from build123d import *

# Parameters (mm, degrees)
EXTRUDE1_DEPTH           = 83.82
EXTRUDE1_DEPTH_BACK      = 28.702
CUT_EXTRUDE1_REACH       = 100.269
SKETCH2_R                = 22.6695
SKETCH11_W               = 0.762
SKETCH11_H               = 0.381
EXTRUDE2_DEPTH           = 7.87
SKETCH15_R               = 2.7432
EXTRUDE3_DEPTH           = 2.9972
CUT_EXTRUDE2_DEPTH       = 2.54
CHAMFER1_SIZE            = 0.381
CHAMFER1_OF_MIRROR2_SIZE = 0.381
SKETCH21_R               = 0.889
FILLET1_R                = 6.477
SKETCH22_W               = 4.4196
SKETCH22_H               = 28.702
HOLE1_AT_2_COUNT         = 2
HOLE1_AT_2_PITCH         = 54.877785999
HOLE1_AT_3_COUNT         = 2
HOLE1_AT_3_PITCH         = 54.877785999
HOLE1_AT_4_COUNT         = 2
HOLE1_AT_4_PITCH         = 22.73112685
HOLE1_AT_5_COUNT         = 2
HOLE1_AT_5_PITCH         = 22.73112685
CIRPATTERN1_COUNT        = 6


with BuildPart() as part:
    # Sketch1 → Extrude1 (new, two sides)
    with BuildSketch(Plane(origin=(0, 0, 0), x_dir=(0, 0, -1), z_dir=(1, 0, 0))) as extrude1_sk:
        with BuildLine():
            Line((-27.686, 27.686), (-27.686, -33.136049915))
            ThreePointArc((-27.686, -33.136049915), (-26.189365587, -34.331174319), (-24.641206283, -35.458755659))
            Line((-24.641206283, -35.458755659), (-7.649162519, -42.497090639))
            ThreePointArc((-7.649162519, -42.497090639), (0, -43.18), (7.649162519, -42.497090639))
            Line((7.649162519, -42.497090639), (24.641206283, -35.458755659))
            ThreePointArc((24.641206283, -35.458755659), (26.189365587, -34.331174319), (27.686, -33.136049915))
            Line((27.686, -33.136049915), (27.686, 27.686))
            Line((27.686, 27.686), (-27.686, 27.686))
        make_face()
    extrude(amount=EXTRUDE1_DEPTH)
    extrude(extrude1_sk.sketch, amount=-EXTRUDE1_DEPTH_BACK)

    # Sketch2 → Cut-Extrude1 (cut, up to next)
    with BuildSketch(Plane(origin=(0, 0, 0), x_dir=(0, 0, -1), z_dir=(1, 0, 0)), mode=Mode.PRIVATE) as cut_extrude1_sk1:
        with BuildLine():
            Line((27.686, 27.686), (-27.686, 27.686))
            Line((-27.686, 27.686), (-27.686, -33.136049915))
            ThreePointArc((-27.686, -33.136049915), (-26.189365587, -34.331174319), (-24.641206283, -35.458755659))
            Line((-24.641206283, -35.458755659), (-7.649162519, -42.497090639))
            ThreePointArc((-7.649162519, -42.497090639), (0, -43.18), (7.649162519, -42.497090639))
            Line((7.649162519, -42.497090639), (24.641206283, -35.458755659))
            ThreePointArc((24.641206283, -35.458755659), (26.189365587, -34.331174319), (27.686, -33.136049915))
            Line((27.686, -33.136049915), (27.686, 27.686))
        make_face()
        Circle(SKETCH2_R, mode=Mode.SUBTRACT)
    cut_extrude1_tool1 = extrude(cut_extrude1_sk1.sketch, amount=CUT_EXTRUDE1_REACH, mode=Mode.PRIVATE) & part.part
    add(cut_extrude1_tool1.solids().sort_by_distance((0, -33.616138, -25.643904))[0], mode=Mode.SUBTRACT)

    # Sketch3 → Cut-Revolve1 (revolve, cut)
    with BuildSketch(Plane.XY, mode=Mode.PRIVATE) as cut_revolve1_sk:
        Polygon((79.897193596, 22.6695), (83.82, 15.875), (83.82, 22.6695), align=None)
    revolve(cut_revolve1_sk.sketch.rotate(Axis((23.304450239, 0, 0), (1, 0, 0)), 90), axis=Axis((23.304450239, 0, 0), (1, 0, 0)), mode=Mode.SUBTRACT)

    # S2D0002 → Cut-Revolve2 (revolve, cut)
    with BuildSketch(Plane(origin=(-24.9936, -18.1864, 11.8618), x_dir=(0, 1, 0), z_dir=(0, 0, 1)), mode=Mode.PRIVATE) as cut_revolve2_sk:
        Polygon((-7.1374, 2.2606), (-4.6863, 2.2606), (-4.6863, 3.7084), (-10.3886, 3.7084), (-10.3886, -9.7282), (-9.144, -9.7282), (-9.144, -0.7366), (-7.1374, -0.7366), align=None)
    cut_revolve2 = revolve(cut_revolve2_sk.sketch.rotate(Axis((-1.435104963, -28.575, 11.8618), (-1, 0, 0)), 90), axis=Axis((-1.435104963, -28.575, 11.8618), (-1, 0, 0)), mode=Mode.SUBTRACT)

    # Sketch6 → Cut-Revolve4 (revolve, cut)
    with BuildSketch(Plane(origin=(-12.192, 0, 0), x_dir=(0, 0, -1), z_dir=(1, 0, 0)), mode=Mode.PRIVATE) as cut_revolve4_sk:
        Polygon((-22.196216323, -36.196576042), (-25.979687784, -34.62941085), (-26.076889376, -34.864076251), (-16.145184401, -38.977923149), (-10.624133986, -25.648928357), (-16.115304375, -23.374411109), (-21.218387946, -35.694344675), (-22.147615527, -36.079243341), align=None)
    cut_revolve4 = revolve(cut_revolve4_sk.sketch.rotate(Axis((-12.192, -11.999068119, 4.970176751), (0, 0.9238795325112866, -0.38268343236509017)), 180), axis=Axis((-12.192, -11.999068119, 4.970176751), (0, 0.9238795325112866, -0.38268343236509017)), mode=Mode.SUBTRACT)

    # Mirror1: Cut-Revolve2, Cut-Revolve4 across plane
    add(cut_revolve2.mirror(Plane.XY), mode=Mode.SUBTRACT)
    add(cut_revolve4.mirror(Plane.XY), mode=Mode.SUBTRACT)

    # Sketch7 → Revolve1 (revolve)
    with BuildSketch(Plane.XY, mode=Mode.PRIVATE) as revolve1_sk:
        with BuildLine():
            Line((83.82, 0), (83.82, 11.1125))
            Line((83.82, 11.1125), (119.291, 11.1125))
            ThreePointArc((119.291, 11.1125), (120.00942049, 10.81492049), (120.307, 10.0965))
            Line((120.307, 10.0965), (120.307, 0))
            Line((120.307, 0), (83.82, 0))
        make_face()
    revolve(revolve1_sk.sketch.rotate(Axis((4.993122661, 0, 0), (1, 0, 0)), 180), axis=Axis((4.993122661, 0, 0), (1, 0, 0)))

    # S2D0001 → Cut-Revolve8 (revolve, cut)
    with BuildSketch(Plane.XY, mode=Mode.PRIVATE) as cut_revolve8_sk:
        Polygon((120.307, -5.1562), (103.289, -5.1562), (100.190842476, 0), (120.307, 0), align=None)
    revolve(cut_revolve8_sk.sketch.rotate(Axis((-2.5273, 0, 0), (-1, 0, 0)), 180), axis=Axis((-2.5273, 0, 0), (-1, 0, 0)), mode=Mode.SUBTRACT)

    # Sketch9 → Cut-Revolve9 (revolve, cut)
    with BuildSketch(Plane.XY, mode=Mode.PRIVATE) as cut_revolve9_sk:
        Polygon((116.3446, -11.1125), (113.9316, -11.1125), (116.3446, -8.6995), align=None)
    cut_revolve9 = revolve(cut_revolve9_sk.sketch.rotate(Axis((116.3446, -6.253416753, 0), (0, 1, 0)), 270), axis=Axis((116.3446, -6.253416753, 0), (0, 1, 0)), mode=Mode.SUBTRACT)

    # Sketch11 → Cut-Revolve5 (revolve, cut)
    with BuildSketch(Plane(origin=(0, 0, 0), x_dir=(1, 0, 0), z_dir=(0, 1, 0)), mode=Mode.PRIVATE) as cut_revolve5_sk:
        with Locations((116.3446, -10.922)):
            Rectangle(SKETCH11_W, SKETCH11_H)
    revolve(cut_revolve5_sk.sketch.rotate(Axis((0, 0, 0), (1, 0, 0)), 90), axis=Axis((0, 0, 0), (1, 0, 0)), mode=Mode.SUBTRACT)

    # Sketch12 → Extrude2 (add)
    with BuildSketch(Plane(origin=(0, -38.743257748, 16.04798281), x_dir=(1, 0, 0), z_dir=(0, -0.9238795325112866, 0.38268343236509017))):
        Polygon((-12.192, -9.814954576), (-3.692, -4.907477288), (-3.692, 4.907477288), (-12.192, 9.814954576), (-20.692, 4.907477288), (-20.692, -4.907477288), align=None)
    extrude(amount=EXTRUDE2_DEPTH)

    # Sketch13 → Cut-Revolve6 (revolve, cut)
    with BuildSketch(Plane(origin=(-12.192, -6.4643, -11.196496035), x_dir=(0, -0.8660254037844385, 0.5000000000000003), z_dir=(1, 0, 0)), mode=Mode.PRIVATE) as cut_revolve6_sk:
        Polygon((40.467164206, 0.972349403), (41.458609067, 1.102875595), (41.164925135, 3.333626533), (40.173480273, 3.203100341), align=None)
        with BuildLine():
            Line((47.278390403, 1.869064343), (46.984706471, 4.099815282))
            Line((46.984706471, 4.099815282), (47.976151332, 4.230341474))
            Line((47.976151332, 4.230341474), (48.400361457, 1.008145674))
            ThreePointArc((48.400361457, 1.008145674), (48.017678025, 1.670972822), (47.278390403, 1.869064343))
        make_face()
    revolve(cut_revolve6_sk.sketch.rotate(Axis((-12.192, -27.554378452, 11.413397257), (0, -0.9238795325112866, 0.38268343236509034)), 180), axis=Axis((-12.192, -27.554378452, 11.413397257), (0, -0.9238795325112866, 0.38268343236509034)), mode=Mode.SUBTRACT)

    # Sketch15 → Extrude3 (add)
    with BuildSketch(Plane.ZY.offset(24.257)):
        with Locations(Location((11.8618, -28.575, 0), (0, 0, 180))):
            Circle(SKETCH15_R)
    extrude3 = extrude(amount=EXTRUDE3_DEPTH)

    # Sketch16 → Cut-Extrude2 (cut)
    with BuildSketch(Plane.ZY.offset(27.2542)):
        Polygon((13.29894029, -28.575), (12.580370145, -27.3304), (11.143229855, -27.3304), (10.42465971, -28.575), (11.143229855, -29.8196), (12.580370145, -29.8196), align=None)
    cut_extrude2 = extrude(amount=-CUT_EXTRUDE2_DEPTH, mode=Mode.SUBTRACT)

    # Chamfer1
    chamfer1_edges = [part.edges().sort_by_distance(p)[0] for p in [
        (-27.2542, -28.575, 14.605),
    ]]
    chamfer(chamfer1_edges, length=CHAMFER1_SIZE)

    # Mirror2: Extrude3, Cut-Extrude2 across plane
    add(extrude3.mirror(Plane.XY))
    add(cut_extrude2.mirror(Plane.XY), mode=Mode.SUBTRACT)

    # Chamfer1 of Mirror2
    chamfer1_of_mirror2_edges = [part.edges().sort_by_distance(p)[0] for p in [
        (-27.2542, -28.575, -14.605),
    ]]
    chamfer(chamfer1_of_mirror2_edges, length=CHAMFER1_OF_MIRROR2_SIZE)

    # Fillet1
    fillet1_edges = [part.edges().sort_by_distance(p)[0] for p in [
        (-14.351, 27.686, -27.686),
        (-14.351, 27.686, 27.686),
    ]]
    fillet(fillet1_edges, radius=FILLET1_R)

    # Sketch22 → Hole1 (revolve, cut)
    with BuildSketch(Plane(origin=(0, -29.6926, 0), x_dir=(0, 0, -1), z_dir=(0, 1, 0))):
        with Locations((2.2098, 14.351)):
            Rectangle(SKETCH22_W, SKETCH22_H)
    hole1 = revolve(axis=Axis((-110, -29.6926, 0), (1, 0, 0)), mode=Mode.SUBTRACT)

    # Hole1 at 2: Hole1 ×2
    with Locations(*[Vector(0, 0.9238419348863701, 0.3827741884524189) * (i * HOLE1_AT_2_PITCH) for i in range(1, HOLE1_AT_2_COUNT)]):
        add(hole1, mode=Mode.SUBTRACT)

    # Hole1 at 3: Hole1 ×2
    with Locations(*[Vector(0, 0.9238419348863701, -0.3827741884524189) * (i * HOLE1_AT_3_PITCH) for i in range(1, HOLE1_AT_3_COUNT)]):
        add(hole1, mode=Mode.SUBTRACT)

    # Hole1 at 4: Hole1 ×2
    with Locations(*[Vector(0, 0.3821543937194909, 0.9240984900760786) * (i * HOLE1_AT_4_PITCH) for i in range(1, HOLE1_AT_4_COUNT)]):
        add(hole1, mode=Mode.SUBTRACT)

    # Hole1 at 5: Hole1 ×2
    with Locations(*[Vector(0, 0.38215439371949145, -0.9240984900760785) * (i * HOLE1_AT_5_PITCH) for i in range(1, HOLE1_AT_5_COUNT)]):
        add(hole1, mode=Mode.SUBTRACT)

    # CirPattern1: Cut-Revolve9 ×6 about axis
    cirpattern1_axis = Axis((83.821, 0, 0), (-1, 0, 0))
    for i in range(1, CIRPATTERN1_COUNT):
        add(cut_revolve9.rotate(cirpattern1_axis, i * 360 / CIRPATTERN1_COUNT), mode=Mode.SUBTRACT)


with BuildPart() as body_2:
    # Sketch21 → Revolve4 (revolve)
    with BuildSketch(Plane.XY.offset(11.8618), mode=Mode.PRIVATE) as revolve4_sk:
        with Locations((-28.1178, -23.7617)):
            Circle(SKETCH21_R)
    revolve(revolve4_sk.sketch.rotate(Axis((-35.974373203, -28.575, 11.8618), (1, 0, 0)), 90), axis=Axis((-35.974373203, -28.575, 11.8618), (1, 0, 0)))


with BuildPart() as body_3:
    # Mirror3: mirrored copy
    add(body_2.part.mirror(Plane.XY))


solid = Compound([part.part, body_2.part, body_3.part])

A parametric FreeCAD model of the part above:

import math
import FreeCAD as App
import Part
import Sketcher
Q = App.Units.Quantity


def edges_at(feature, points):
    """Names of the edges that pass closest to the given points."""
    edges = feature.Shape.Edges
    near = lambda p: min(range(len(edges)), key=lambda i: edges[i].distToShape(Part.Vertex(*p))[0])
    return sorted({f"Edge{near(p) + 1}" for p in points})

doc = App.newDocument("Part")
body = doc.addObject("PartDesign::Body", "Body")

sketch1 = body.newObject("Sketcher::SketchObject", "Sketch")
sketch1.AttachmentSupport = (doc.getObject("YZ_Plane"), [""])
sketch1.MapMode = "FlatFace"
sketch1.addGeometry(Part.LineSegment(App.Vector(27.7, 27.7, 0), App.Vector(-33.1, 27.7, 0)), False)
sketch1.addGeometry(Part.ArcOfCircle(Part.Circle(App.Vector(0, 0, 0), App.Vector(0, 0, 1), 43.2), math.radians(140.12), math.radians(145.2)), False)
sketch1.addGeometry(Part.LineSegment(App.Vector(-35.5, 24.6, 0), App.Vector(-42.5, 7.6, 0)), False)
sketch1.addGeometry(Part.ArcOfCircle(Part.Circle(App.Vector(0, 0, 0), App.Vector(0, 0, 1), 43.2), math.radians(170), math.radians(190)), False)
sketch1.addGeometry(Part.LineSegment(App.Vector(-42.5, -7.6, 0), App.Vector(-35.5, -24.6, 0)), False)
sketch1.addGeometry(Part.ArcOfCircle(Part.Circle(App.Vector(0, 0, 0), App.Vector(0, 0, 1), 43.2), math.radians(-145.2), math.radians(-140.12)), False)
sketch1.addGeometry(Part.LineSegment(App.Vector(-33.1, -27.7, 0), App.Vector(27.7, -27.7, 0)), False)
sketch1.addGeometry(Part.LineSegment(App.Vector(27.7, -27.7, 0), App.Vector(27.7, 27.7, 0)), False)
sketch1.addConstraint(Sketcher.Constraint("Coincident", 0, 2, 1, 1))
sketch1.addConstraint(Sketcher.Constraint("Coincident", 1, 2, 2, 1))
sketch1.addConstraint(Sketcher.Constraint("Coincident", 2, 2, 3, 1))
sketch1.addConstraint(Sketcher.Constraint("Coincident", 3, 2, 4, 1))
sketch1.addConstraint(Sketcher.Constraint("Coincident", 4, 2, 5, 1))
sketch1.addConstraint(Sketcher.Constraint("Coincident", 5, 2, 6, 1))
sketch1.addConstraint(Sketcher.Constraint("Coincident", 6, 2, 7, 1))
sketch1.addConstraint(Sketcher.Constraint("Coincident", 7, 2, 0, 1))
sketch1.addConstraint(Sketcher.Constraint("Horizontal", 0))
sketch1.addConstraint(Sketcher.Constraint("Horizontal", 6))
sketch1.addConstraint(Sketcher.Constraint("Vertical", 7))
sketch1.addConstraint(Sketcher.Constraint("Coincident", 1, 3, -1, 1))
sketch1.addConstraint(Sketcher.Constraint("Coincident", 3, 3, -1, 1))
sketch1.addConstraint(Sketcher.Constraint("Coincident", 5, 3, -1, 1))
sketch1.addConstraint(Sketcher.Constraint("Equal", 1, 3))
sketch1.addConstraint(Sketcher.Constraint("Equal", 3, 5))
sketch1.addConstraint(Sketcher.Constraint("Vertical", 2, 2, 3, 2))
sketch1.addConstraint(Sketcher.Constraint("Vertical", 1, 2, 4, 2))
sketch1.addConstraint(Sketcher.Constraint("Vertical", 0, 2, 5, 2))
sketch1.addConstraint(Sketcher.Constraint("Radius", 1, Q("1.7 in")))
sketch1.addConstraint(Sketcher.Constraint("DistanceY", 7, 1, 7, 2, Q("2.18 in")))
sketch1.addConstraint(Sketcher.Constraint("Angle", 2, Q("-112.5 deg")))
sketch1.addConstraint(Sketcher.Constraint("DistanceX", -1, 1, 6, 2, Q("1.09 in")))
sketch1.addConstraint(Sketcher.Constraint("DistanceX", 2, 2, 1, 2, Q("0.2770998 in")))
pad1 = body.newObject("PartDesign::Pad", "Pad")
pad1.Profile = sketch1
pad1.Type = "TwoLengths"
pad1.Length = Q("3.3 in")
pad1.Length2 = Q("1.13 in")

sketch2 = body.newObject("Sketcher::SketchObject", "Sketch001")
sketch2.AttachmentSupport = (doc.getObject("YZ_Plane"), [""])
sketch2.MapMode = "FlatFace"
sketch2.addGeometry(Part.LineSegment(App.Vector(27.7, -27.7, 0), App.Vector(27.7, 27.7, 0)), False)
sketch2.addGeometry(Part.LineSegment(App.Vector(27.7, 27.7, 0), App.Vector(-33.1, 27.7, 0)), False)
sketch2.addGeometry(Part.ArcOfCircle(Part.Circle(App.Vector(0, 0, 0), App.Vector(0, 0, 1), 43.2), math.radians(140.12), math.radians(145.2)), False)
sketch2.addGeometry(Part.LineSegment(App.Vector(-35.5, 24.6, 0), App.Vector(-42.5, 7.6, 0)), False)
sketch2.addGeometry(Part.ArcOfCircle(Part.Circle(App.Vector(0, 0, 0), App.Vector(0, 0, 1), 43.2), math.radians(170), math.radians(190)), False)
sketch2.addGeometry(Part.LineSegment(App.Vector(-42.5, -7.6, 0), App.Vector(-35.5, -24.6, 0)), False)
sketch2.addGeometry(Part.ArcOfCircle(Part.Circle(App.Vector(0, 0, 0), App.Vector(0, 0, 1), 43.2), math.radians(-145.2), math.radians(-140.12)), False)
sketch2.addGeometry(Part.LineSegment(App.Vector(-33.1, -27.7, 0), App.Vector(27.7, -27.7, 0)), False)
sketch2.addGeometry(Part.Circle(App.Vector(0, 0, 0), App.Vector(0, 0, 1), 22.7), False)
sketch2.addConstraint(Sketcher.Constraint("Coincident", 0, 2, 1, 1))
sketch2.addConstraint(Sketcher.Constraint("Coincident", 1, 2, 2, 1))
sketch2.addConstraint(Sketcher.Constraint("Coincident", 2, 2, 3, 1))
sketch2.addConstraint(Sketcher.Constraint("Coincident", 3, 2, 4, 1))
sketch2.addConstraint(Sketcher.Constraint("Coincident", 4, 2, 5, 1))
sketch2.addConstraint(Sketcher.Constraint("Coincident", 5, 2, 6, 1))
sketch2.addConstraint(Sketcher.Constraint("Coincident", 6, 2, 7, 1))
sketch2.addConstraint(Sketcher.Constraint("Coincident", 7, 2, 0, 1))
sketch2.addConstraint(Sketcher.Constraint("Vertical", 0))
sketch2.addConstraint(Sketcher.Constraint("Horizontal", 1))
sketch2.addConstraint(Sketcher.Constraint("Horizontal", 7))
sketch2.addConstraint(Sketcher.Constraint("Coincident", 2, 3, -1, 1))
sketch2.addConstraint(Sketcher.Constraint("Coincident", 4, 3, -1, 1))
sketch2.addConstraint(Sketcher.Constraint("Coincident", 6, 3, -1, 1))
sketch2.addConstraint(Sketcher.Constraint("Coincident", 8, 3, -1, 1))
sketch2.addConstraint(Sketcher.Constraint("Equal", 2, 4))
sketch2.addConstraint(Sketcher.Constraint("Equal", 4, 6))
sketch2.addConstraint(Sketcher.Constraint("Vertical", 3, 2, 4, 2))
sketch2.addConstraint(Sketcher.Constraint("Vertical", 2, 2, 5, 2))
sketch2.addConstraint(Sketcher.Constraint("Vertical", 1, 2, 6, 2))
sketch2.addConstraint(Sketcher.Constraint("Radius", 2, Q("1.7 in")))
sketch2.addConstraint(Sketcher.Constraint("Diameter", 8, Q("1.785 in")))
sketch2.addConstraint(Sketcher.Constraint("DistanceY", 0, 1, 0, 2, Q("2.18 in")))
sketch2.addConstraint(Sketcher.Constraint("Angle", 3, Q("-112.5 deg")))
sketch2.addConstraint(Sketcher.Constraint("DistanceX", -1, 1, 0, 2, Q("1.09 in")))
sketch2.addConstraint(Sketcher.Constraint("DistanceX", 3, 2, 2, 2, Q("0.2770998 in")))
pocket1 = body.newObject("PartDesign::Pocket", "Pocket")
pocket1.Profile = sketch2
pocket1.Type = "UpToFirst"
pocket1.Reversed = True

sketch3 = body.newObject("Sketcher::SketchObject", "Sketch002")
sketch3.AttachmentSupport = (doc.getObject("XY_Plane"), [""])
sketch3.MapMode = "FlatFace"
sketch3.addGeometry(Part.LineSegment(App.Vector(79.9, 22.7, 0), App.Vector(83.8, 15.9, 0)), False)
sketch3.addGeometry(Part.LineSegment(App.Vector(83.8, 15.9, 0), App.Vector(83.8, 22.7, 0)), False)
sketch3.addGeometry(Part.LineSegment(App.Vector(83.8, 22.7, 0), App.Vector(79.9, 22.7, 0)), False)
sketch3.addConstraint(Sketcher.Constraint("Coincident", 0, 2, 1, 1))
sketch3.addConstraint(Sketcher.Constraint("Coincident", 1, 2, 2, 1))
sketch3.addConstraint(Sketcher.Constraint("Coincident", 2, 2, 0, 1))
sketch3.addConstraint(Sketcher.Constraint("Vertical", 1))
sketch3.addConstraint(Sketcher.Constraint("Horizontal", 2))
sketch3.addConstraint(Sketcher.Constraint("Angle", 0, Q("-60 deg")))
sketch3.addConstraint(Sketcher.Constraint("DistanceX", -1, 1, 0, 2, Q("3.3 in")))
sketch3.addConstraint(Sketcher.Constraint("DistanceY", 1, 1, 1, 2, Q("0.2675 in")))
sketch3.addConstraint(Sketcher.Constraint("DistanceY", -1, 1, 0, 2, Q("0.625 in")))
groove = body.newObject("PartDesign::Groove", "Groove")
groove.Profile = sketch3
groove.ReferenceAxis = (sketch3, ["H_Axis"])
groove.Angle = 360

sketch4 = body.newObject("Sketcher::SketchObject", "Sketch003")
sketch4.AttachmentSupport = (doc.getObject("XY_Plane"), [""])
sketch4.MapMode = "FlatFace"
sketch4.AttachmentOffset = App.Placement(App.Vector(0, 0, 0.467 * 25.4), App.Rotation())
sketch4.addGeometry(Part.LineSegment(App.Vector(-27.3, -25.3, 0), App.Vector(-27.3, -22.9, 0)), False)
sketch4.addGeometry(Part.LineSegment(App.Vector(-27.3, -22.9, 0), App.Vector(-28.7, -22.9, 0)), False)
sketch4.addGeometry(Part.LineSegment(App.Vector(-28.7, -22.9, 0), App.Vector(-28.7, -28.6, 0)), False)
sketch4.addGeometry(Part.LineSegment(App.Vector(-28.7, -28.6, 0), App.Vector(-15.3, -28.6, 0)), False)
sketch4.addGeometry(Part.LineSegment(App.Vector(-15.3, -28.6, 0), App.Vector(-15.3, -27.3, 0)), False)
sketch4.addGeometry(Part.LineSegment(App.Vector(-15.3, -27.3, 0), App.Vector(-24.3, -27.3, 0)), False)
sketch4.addGeometry(Part.LineSegment(App.Vector(-24.3, -27.3, 0), App.Vector(-24.3, -25.3, 0)), False)
sketch4.addGeometry(Part.LineSegment(App.Vector(-24.3, -25.3, 0), App.Vector(-27.3, -25.3, 0)), False)
sketch4.addGeometry(Part.LineSegment(App.Vector(-15.3, -28.6, 0), App.Vector(-28.7, -28.6, 0)), True)
sketch4.addConstraint(Sketcher.Constraint("Coincident", 0, 2, 1, 1))
sketch4.addConstraint(Sketcher.Constraint("Coincident", 1, 2, 2, 1))
sketch4.addConstraint(Sketcher.Constraint("Coincident", 2, 2, 3, 1))
sketch4.addConstraint(Sketcher.Constraint("Coincident", 3, 2, 4, 1))
sketch4.addConstraint(Sketcher.Constraint("Coincident", 4, 2, 5, 1))
sketch4.addConstraint(Sketcher.Constraint("Coincident", 5, 2, 6, 1))
sketch4.addConstraint(Sketcher.Constraint("Coincident", 6, 2, 7, 1))
sketch4.addConstraint(Sketcher.Constraint("Coincident", 7, 2, 0, 1))
sketch4.addConstraint(Sketcher.Constraint("Vertical", 0))
sketch4.addConstraint(Sketcher.Constraint("Horizontal", 1))
sketch4.addConstraint(Sketcher.Constraint("Vertical", 2))
sketch4.addConstraint(Sketcher.Constraint("Horizontal", 3))
sketch4.addConstraint(Sketcher.Constraint("Vertical", 4))
sketch4.addConstraint(Sketcher.Constraint("Horizontal", 5))
sketch4.addConstraint(Sketcher.Constraint("Vertical", 6))
sketch4.addConstraint(Sketcher.Constraint("Horizontal", 7))
sketch4.addConstraint(Sketcher.Constraint("Horizontal", 8))
sketch4.addConstraint(Sketcher.Constraint("Coincident", 8, 1, 3, 2))
sketch4.addConstraint(Sketcher.Constraint("Vertical", 1, 2, 8, 2))
sketch4.addConstraint(Sketcher.Constraint("DistanceX", 1, 2, 1, 1, Q("0.057 in")))
sketch4.addConstraint(Sketcher.Constraint("DistanceX", 3, 1, 3, 2, Q("0.529 in")))
sketch4.addConstraint(Sketcher.Constraint("DistanceX", 5, 2, 5, 1, Q("0.354 in")))
sketch4.addConstraint(Sketcher.Constraint("DistanceY", 4, 1, 4, 2, Q("0.049 in")))
sketch4.addConstraint(Sketcher.Constraint("DistanceY", 6, 1, 6, 2, Q("0.079 in")))
sketch4.addConstraint(Sketcher.Constraint("DistanceX", 1, 2, -1, 1, Q("1.13 in")))
sketch4.addConstraint(Sketcher.Constraint("DistanceY", 0, 1, 0, 2, Q("0.0965 in")))
sketch4.addConstraint(Sketcher.Constraint("DistanceY", 2, 2, -1, 1, Q("1.125 in")))
groove2 = body.newObject("PartDesign::Groove", "Groove001")
groove2.Profile = sketch4
groove2.ReferenceAxis = (sketch4, ["Axis0"])
groove2.Angle = 360

sketch5 = body.newObject("Sketcher::SketchObject", "Sketch004")
sketch5.AttachmentSupport = (doc.getObject("YZ_Plane"), [""])
sketch5.MapMode = "FlatFace"
sketch5.AttachmentOffset = App.Placement(App.Vector(0, 0, -0.48 * 25.4), App.Rotation())
sketch5.addGeometry(Part.LineSegment(App.Vector(-36.2, 22.2, 0), App.Vector(-34.63, 25.98, 0)), False)
sketch5.addGeometry(Part.LineSegment(App.Vector(-34.63, 25.98, 0), App.Vector(-34.86, 26.08, 0)), False)
sketch5.addGeometry(Part.LineSegment(App.Vector(-34.86, 26.08, 0), App.Vector(-38.98, 16.15, 0)), False)
sketch5.addGeometry(Part.LineSegment(App.Vector(-38.98, 16.15, 0), App.Vector(-25.65, 10.62, 0)), False)
sketch5.addGeometry(Part.LineSegment(App.Vector(-25.65, 10.62, 0), App.Vector(-23.37, 16.12, 0)), False)
sketch5.addGeometry(Part.LineSegment(App.Vector(-23.37, 16.12, 0), App.Vector(-35.69, 21.22, 0)), False)
sketch5.addGeometry(Part.LineSegment(App.Vector(-35.69, 21.22, 0), App.Vector(-36.08, 22.15, 0)), False)
sketch5.addGeometry(Part.LineSegment(App.Vector(-36.08, 22.15, 0), App.Vector(-36.2, 22.2, 0)), False)
sketch5.addGeometry(Part.LineSegment(App.Vector(-38.98, 16.15, 0), App.Vector(-25.65, 10.62, 0)), True)
sketch5.addConstraint(Sketcher.Constraint("Coincident", 0, 2, 1, 1))
sketch5.addConstraint(Sketcher.Constraint("Coincident", 1, 2, 2, 1))
sketch5.addConstraint(Sketcher.Constraint("Coincident", 2, 2, 3, 1))
sketch5.addConstraint(Sketcher.Constraint("Coincident", 3, 2, 4, 1))
sketch5.addConstraint(Sketcher.Constraint("Coincident", 4, 2, 5, 1))
sketch5.addConstraint(Sketcher.Constraint("Coincident", 5, 2, 6, 1))
sketch5.addConstraint(Sketcher.Constraint("Coincident", 6, 2, 7, 1))
sketch5.addConstraint(Sketcher.Constraint("Coincident", 7, 2, 0, 1))
sketch5.addConstraint(Sketcher.Constraint("Coincident", 8, 1, 2, 2))
sketch5.addConstraint(Sketcher.Constraint("Coincident", 8, 2, 3, 2))
sketch5.addConstraint(Sketcher.Constraint("Perpendicular", 0, 1))
sketch5.addConstraint(Sketcher.Constraint("Perpendicular", 1, 2))
sketch5.addConstraint(Sketcher.Constraint("Perpendicular", 2, 3))
sketch5.addConstraint(Sketcher.Constraint("Perpendicular", 3, 4))
sketch5.addConstraint(Sketcher.Constraint("Perpendicular", 4, 5))
sketch5.addConstraint(Sketcher.Constraint("Parallel", 5, 7))
sketch5.addConstraint(Sketcher.Constraint("Angle", 0, Q("67.5 deg")))
sketch5.addConstraint(Sketcher.Constraint("Angle", 6, Q("112.5 deg")))
sketch5.addConstraint(Sketcher.Constraint("Distance", 1, Q("0.01 in")))
sketch5.addConstraint(Sketcher.Constraint("Distance", 3, Q("0.568 in")))
sketch5.addConstraint(Sketcher.Constraint("Distance", 4, Q("0.234 in")))
sketch5.addConstraint(Sketcher.Constraint("Distance", 5, Q("0.525 in")))
sketch5.addConstraint(Sketcher.Constraint("Distance", 7, Q("0.005 in")))
sketch5.addConstraint(Sketcher.Constraint("Distance", 0, 4.0952))
sketch5.addConstraint(Sketcher.Constraint("DistanceX", 0, 2, -1, 1, 34.629411))
sketch5.addConstraint(Sketcher.Constraint("DistanceY", -1, 1, 1, 2, 26.076889))
groove3 = body.newObject("PartDesign::Groove", "Groove002")
groove3.Profile = sketch5
groove3.ReferenceAxis = (sketch5, ["Axis0"])
groove3.Angle = 360
doc.recompute()

mirrored = body.newObject("PartDesign::Mirrored", "Mirrored")
mirrored.Originals = [groove2, groove3]
mirrored.MirrorPlane = (doc.getObject("XY_Plane"), [""])
body.Tip = mirrored

sketch6 = body.newObject("Sketcher::SketchObject", "Sketch005")
sketch6.AttachmentSupport = (doc.getObject("XY_Plane"), [""])
sketch6.MapMode = "FlatFace"
sketch6.addGeometry(Part.LineSegment(App.Vector(83.8, 11.1, 0), App.Vector(83.8, 0, 0)), False)
sketch6.addGeometry(Part.LineSegment(App.Vector(83.8, 0, 0), App.Vector(120.3, 0, 0)), False)
sketch6.addGeometry(Part.LineSegment(App.Vector(120.3, 0, 0), App.Vector(120.3, 10.1, 0)), False)
sketch6.addGeometry(Part.ArcOfCircle(Part.Circle(App.Vector(119.3, 10.1, 0), App.Vector(0, 0, 1), 1), math.radians(0), math.radians(90)), False)
sketch6.addGeometry(Part.LineSegment(App.Vector(119.3, 11.1, 0), App.Vector(83.8, 11.1, 0)), False)
sketch6.addConstraint(Sketcher.Constraint("Coincident", 0, 2, 1, 1))
sketch6.addConstraint(Sketcher.Constraint("Coincident", 1, 2, 2, 1))
sketch6.addConstraint(Sketcher.Constraint("Tangent", 2, 2, 3, 1))
sketch6.addConstraint(Sketcher.Constraint("Tangent", 3, 2, 4, 1))
sketch6.addConstraint(Sketcher.Constraint("Coincident", 4, 2, 0, 1))
sketch6.addConstraint(Sketcher.Constraint("Vertical", 0))
sketch6.addConstraint(Sketcher.Constraint("Horizontal", 1))
sketch6.addConstraint(Sketcher.Constraint("Vertical", 2))
sketch6.addConstraint(Sketcher.Constraint("Horizontal", 4))
sketch6.addConstraint(Sketcher.Constraint("PointOnObject", 0, 2, -1))
sketch6.addConstraint(Sketcher.Constraint("Radius", 3, Q("0.04 in")))
sketch6.addConstraint(Sketcher.Constraint("DistanceX", -1, 1, 0, 2, Q("3.3 in")))
sketch6.addConstraint(Sketcher.Constraint("DistanceY", 0, 2, 0, 1, Q("0.4375 in")))
sketch6.addConstraint(Sketcher.Constraint("DistanceX", 1, 1, 1, 2, 36.487))
revolution = body.newObject("PartDesign::Revolution", "Revolution")
revolution.Profile = sketch6
revolution.ReferenceAxis = (sketch6, ["H_Axis"])
revolution.Angle = 360

sketch7 = body.newObject("Sketcher::SketchObject", "Sketch006")
sketch7.AttachmentSupport = (doc.getObject("XY_Plane"), [""])
sketch7.MapMode = "FlatFace"
sketch7.addGeometry(Part.LineSegment(App.Vector(103, -5, 0), App.Vector(120, -5, 0)), False)
sketch7.addGeometry(Part.LineSegment(App.Vector(120, -5, 0), App.Vector(120, 0, 0)), False)
sketch7.addGeometry(Part.LineSegment(App.Vector(120, 0, 0), App.Vector(100, 0, 0)), False)
sketch7.addGeometry(Part.LineSegment(App.Vector(100, 0, 0), App.Vector(103, -5, 0)), False)
sketch7.addConstraint(Sketcher.Constraint("Coincident", 0, 2, 1, 1))
sketch7.addConstraint(Sketcher.Constraint("Coincident", 1, 2, 2, 1))
sketch7.addConstraint(Sketcher.Constraint("Coincident", 2, 2, 3, 1))
sketch7.addConstraint(Sketcher.Constraint("Coincident", 3, 2, 0, 1))
sketch7.addConstraint(Sketcher.Constraint("Horizontal", 0))
sketch7.addConstraint(Sketcher.Constraint("Vertical", 1))
sketch7.addConstraint(Sketcher.Constraint("Horizontal", 2))
sketch7.addConstraint(Sketcher.Constraint("PointOnObject", 1, 2, -1))
sketch7.addConstraint(Sketcher.Constraint("Angle", 3, Q("-59 deg")))
sketch7.addConstraint(Sketcher.Constraint("DistanceX", 0, 1, 0, 2, Q("0.67 in")))
sketch7.addConstraint(Sketcher.Constraint("DistanceY", 1, 1, 1, 2, Q("0.203 in")))
sketch7.addConstraint(Sketcher.Constraint("DistanceX", -1, 1, 0, 2, 120.307))
groove4 = body.newObject("PartDesign::Groove", "Groove003")
groove4.Profile = sketch7
groove4.ReferenceAxis = (sketch7, ["H_Axis"])
groove4.Angle = 360

sketch8 = body.newObject("Sketcher::SketchObject", "Sketch007")
sketch8.AttachmentSupport = (doc.getObject("XY_Plane"), [""])
sketch8.MapMode = "FlatFace"
sketch8.addGeometry(Part.LineSegment(App.Vector(113.9, -11.1, 0), App.Vector(116.3, -11.1, 0)), False)
sketch8.addGeometry(Part.LineSegment(App.Vector(116.3, -11.1, 0), App.Vector(116.3, -8.7, 0)), False)
sketch8.addGeometry(Part.LineSegment(App.Vector(116.3, -8.7, 0), App.Vector(113.9, -11.1, 0)), False)
sketch8.addGeometry(Part.LineSegment(App.Vector(116.3, -11.1, 0), App.Vector(116.3, -8.7, 0)), True)
sketch8.addConstraint(Sketcher.Constraint("Coincident", 0, 2, 1, 1))
sketch8.addConstraint(Sketcher.Constraint("Coincident", 1, 2, 2, 1))
sketch8.addConstraint(Sketcher.Constraint("Coincident", 2, 2, 0, 1))
sketch8.addConstraint(Sketcher.Constraint("Horizontal", 0))
sketch8.addConstraint(Sketcher.Constraint("Vertical", 1))
sketch8.addConstraint(Sketcher.Constraint("Vertical", 3))
sketch8.addConstraint(Sketcher.Constraint("Coincident", 3, 1, 0, 2))
sketch8.addConstraint(Sketcher.Constraint("Equal", 0, 1))
sketch8.addConstraint(Sketcher.Constraint("Equal", 1, 3))
sketch8.addConstraint(Sketcher.Constraint("DistanceX", 0, 1, 0, 2, Q("0.095 in")))
sketch8.addConstraint(Sketcher.Constraint("DistanceY", 0, 2, -1, 1, Q("0.4375 in")))
sketch8.addConstraint(Sketcher.Constraint("DistanceX", -1, 1, 0, 2, 116.3446))
groove5 = body.newObject("PartDesign::Groove", "Groove004")
groove5.Profile = sketch8
groove5.ReferenceAxis = (sketch8, ["Axis0"])
groove5.Angle = 360

sketch9 = body.newObject("Sketcher::SketchObject", "Sketch008")
sketch9.AttachmentSupport = (doc.getObject("XZ_Plane"), [""])
sketch9.MapMode = "FlatFace"
sketch9.addGeometry(Part.LineSegment(App.Vector(115.96, 10.73, 0), App.Vector(115.96, 11.11, 0)), False)
sketch9.addGeometry(Part.LineSegment(App.Vector(115.96, 11.11, 0), App.Vector(116.73, 11.11, 0)), False)
sketch9.addGeometry(Part.LineSegment(App.Vector(116.73, 11.11, 0), App.Vector(116.73, 10.73, 0)), False)
sketch9.addGeometry(Part.LineSegment(App.Vector(116.73, 10.73, 0), App.Vector(115.96, 10.73, 0)), False)
sketch9.addConstraint(Sketcher.Constraint("Coincident", 0, 2, 1, 1))
sketch9.addConstraint(Sketcher.Constraint("Coincident", 1, 2, 2, 1))
sketch9.addConstraint(Sketcher.Constraint("Coincident", 2, 2, 3, 1))
sketch9.addConstraint(Sketcher.Constraint("Coincident", 3, 2, 0, 1))
sketch9.addConstraint(Sketcher.Constraint("Vertical", 0))
sketch9.addConstraint(Sketcher.Constraint("Horizontal", 1))
sketch9.addConstraint(Sketcher.Constraint("Vertical", 2))
sketch9.addConstraint(Sketcher.Constraint("Horizontal", 3))
sketch9.addConstraint(Sketcher.Constraint("DistanceX", 1, 1, 1, 2, Q("0.03 in")))
sketch9.addConstraint(Sketcher.Constraint("DistanceY", 0, 1, 0, 2, Q("0.015 in")))
sketch9.addConstraint(Sketcher.Constraint("DistanceY", -1, 1, 0, 2, Q("0.4375 in")))
sketch9.addConstraint(Sketcher.Constraint("DistanceX", -1, 1, 0, 2, 115.9636))
groove6 = body.newObject("PartDesign::Groove", "Groove005")
groove6.Profile = sketch9
groove6.ReferenceAxis = (sketch9, ["H_Axis"])
groove6.Angle = 360

sketch10 = body.newObject("Sketcher::SketchObject", "Sketch009")
sketch10.Placement = App.Placement(App.Vector(0, -38.743258, 16.047983), App.Rotation(App.Vector(1, 0, 0), App.Vector(0, 0.382683432, 0.923879533), App.Vector(0, -0.923879533, 0.382683432), "ZXY"))
sketch10.addGeometry(Part.LineSegment(App.Vector(-12, -10, 0), App.Vector(-4, -5, 0)), False)
sketch10.addGeometry(Part.LineSegment(App.Vector(-4, -5, 0), App.Vector(-4, 5, 0)), False)
sketch10.addGeometry(Part.LineSegment(App.Vector(-4, 5, 0), App.Vector(-12, 10, 0)), False)
sketch10.addGeometry(Part.LineSegment(App.Vector(-12, 10, 0), App.Vector(-21, 5, 0)), False)
sketch10.addGeometry(Part.LineSegment(App.Vector(-21, 5, 0), App.Vector(-21, -5, 0)), False)
sketch10.addGeometry(Part.LineSegment(App.Vector(-21, -5, 0), App.Vector(-12, -10, 0)), False)
sketch10.addConstraint(Sketcher.Constraint("Coincident", 0, 2, 1, 1))
sketch10.addConstraint(Sketcher.Constraint("Coincident", 1, 2, 2, 1))
sketch10.addConstraint(Sketcher.Constraint("Coincident", 2, 2, 3, 1))
sketch10.addConstraint(Sketcher.Constraint("Coincident", 3, 2, 4, 1))
sketch10.addConstraint(Sketcher.Constraint("Coincident", 4, 2, 5, 1))
sketch10.addConstraint(Sketcher.Constraint("Coincident", 5, 2, 0, 1))
sketch10.addConstraint(Sketcher.Constraint("Vertical", 1))
sketch10.addConstraint(Sketcher.Constraint("Vertical", 4))
sketch10.addConstraint(Sketcher.Constraint("Symmetric", 2, 2, 5, 2, -1))
sketch10.addConstraint(Sketcher.Constraint("Parallel", 0, 3))
sketch10.addConstraint(Sketcher.Constraint("Parallel", 2, 5))
sketch10.addConstraint(Sketcher.Constraint("Horizontal", 1, 2, 3, 2))
sketch10.addConstraint(Sketcher.Constraint("Horizontal", 0, 2, 4, 2))
sketch10.addConstraint(Sketcher.Constraint("Angle", 0, Q("30 deg")))
sketch10.addConstraint(Sketcher.Constraint("DistanceX", 2, 2, -1, 1, Q("0.48 in")))
sketch10.addConstraint(Sketcher.Constraint("DistanceX", 0, 2, -1, 1, 3.692))
sketch10.addConstraint(Sketcher.Constraint("DistanceY", 1, 1, 1, 2, 9.814955))
pad2 = body.newObject("PartDesign::Pad", "Pad001")
pad2.Profile = sketch10
pad2.Length = 7.87

sketch11 = body.newObject("Sketcher::SketchObject", "Sketch010")
sketch11.AttachmentSupport = (doc.getObject("YZ_Plane"), [""])
sketch11.MapMode = "FlatFace"
sketch11.AttachmentOffset = App.Placement(App.Vector(0, 0, -0.48 * 25.4), App.Rotation())
sketch11.addGeometry(Part.LineSegment(App.Vector(-42, 8.2, 0), App.Vector(-42.9, 8.6, 0)), False)
sketch11.addGeometry(Part.LineSegment(App.Vector(-42.9, 8.6, 0), App.Vector(-43.8, 6.5, 0)), False)
sketch11.addGeometry(Part.LineSegment(App.Vector(-43.8, 6.5, 0), App.Vector(-42.9, 6.1, 0)), False)
sketch11.addGeometry(Part.LineSegment(App.Vector(-42.9, 6.1, 0), App.Vector(-42, 8.2, 0)), False)
sketch11.addGeometry(Part.LineSegment(App.Vector(-49.2, 8.7, 0), App.Vector(-48.3, 10.8, 0)), False)
sketch11.addGeometry(Part.ArcOfCircle(Part.Circle(App.Vector(-48, 11.7, 0), App.Vector(0, 0, 1), 1), math.radians(158), math.radians(248)), False)
sketch11.addGeometry(Part.LineSegment(App.Vector(-48.9, 12.1, 0), App.Vector(-50.1, 9.1, 0)), False)
sketch11.addGeometry(Part.LineSegment(App.Vector(-50.1, 9.1, 0), App.Vector(-49.2, 8.7, 0)), False)
sketch11.addGeometry(Part.LineSegment(App.Vector(-38.7, 16, 0), App.Vector(-46, 19.1, 0)), True)
sketch11.addConstraint(Sketcher.Constraint("Coincident", 0, 2, 1, 1))
sketch11.addConstraint(Sketcher.Constraint("Coincident", 1, 2, 2, 1))
sketch11.addConstraint(Sketcher.Constraint("Coincident", 2, 2, 3, 1))
sketch11.addConstraint(Sketcher.Constraint("Coincident", 3, 2, 0, 1))
sketch11.addConstraint(Sketcher.Constraint("Coincident", 4, 2, 5, 2))
sketch11.addConstraint(Sketcher.Constraint("Tangent", 5, 1, 6, 1))
sketch11.addConstraint(Sketcher.Constraint("Coincident", 6, 2, 7, 1))
sketch11.addConstraint(Sketcher.Constraint("Coincident", 7, 2, 4, 1))
sketch11.addConstraint(Sketcher.Constraint("Perpendicular", 0, 1))
sketch11.addConstraint(Sketcher.Constraint("Perpendicular", 1, 2))
sketch11.addConstraint(Sketcher.Constraint("Perpendicular", 2, 3))
sketch11.addConstraint(Sketcher.Constraint("Parallel", 3, 4))
sketch11.addConstraint(Sketcher.Constraint("Parallel", 4, 6))
sketch11.addConstraint(Sketcher.Constraint("Perpendicular", 6, 7))
sketch11.addConstraint(Sketcher.Constraint("Parallel", 7, 8))
sketch11.addConstraint(Sketcher.Constraint("Equal", 3, 4))
sketch11.addConstraint(Sketcher.Constraint("Equal", 2, 7))
sketch11.addConstraint(Sketcher.Constraint("Angle", 0, Q("157.5 deg")))
sketch11.addConstraint(Sketcher.Constraint("Radius", 5, 1.0))
sketch11.addConstraint(Sketcher.Constraint("Distance", 0, 1.0))
sketch11.addConstraint(Sketcher.Constraint("Distance", 1, 2.25))
sketch11.addConstraint(Sketcher.Constraint("Distance", 8, 7.87))
sketch11.addConstraint(Sketcher.Constraint("DistanceY", -1, 1, 8, 2, 19.059701))
sketch11.addConstraint(Sketcher.Constraint("DistanceY", 3, 2, 5, 1, 3.935598))
sketch11.addConstraint(Sketcher.Constraint("DistanceY", -1, 1, 5, 3, 11.747921))
sketch11.addConstraint(Sketcher.Constraint("DistanceX", 4, 2, -1, 1, 48.343119))
sketch11.addConstraint(Sketcher.Constraint("DistanceX", 8, 2, -1, 1, 46.01419))
sketch11.addConstraint(Sketcher.Constraint("DistanceX", 5, 3, 0, 2, 5.040489))
groove7 = body.newObject("PartDesign::Groove", "Groove006")
groove7.Profile = sketch11
groove7.ReferenceAxis = (sketch11, ["Axis0"])
groove7.Angle = 360

sketch12 = body.newObject("Sketcher::SketchObject", "Sketch011")
sketch12.AttachmentSupport = (doc.getObject("YZ_Plane"), [""])
sketch12.MapMode = "FlatFace"
sketch12.AttachmentOffset = App.Placement(App.Vector(0, 0, -0.955 * 25.4), App.Rotation())
sketch12.addGeometry(Part.Circle(App.Vector(-28.6, 11.9, 0), App.Vector(0, 0, 1), 2.7), False)
sketch12.addConstraint(Sketcher.Constraint("Diameter", 0, Q("0.216 in")))
sketch12.addConstraint(Sketcher.Constraint("DistanceX", 0, 3, -1, 1, Q("1.125 in")))
sketch12.addConstraint(Sketcher.Constraint("DistanceY", -1, 1, 0, 3, Q("0.467 in")))
pad3 = body.newObject("PartDesign::Pad", "Pad002")
pad3.Profile = sketch12
pad3.Length = Q("0.118 in")
pad3.Reversed = True

sketch13 = body.newObject("Sketcher::SketchObject", "Sketch012")
sketch13.AttachmentSupport = (doc.getObject("YZ_Plane"), [""])
sketch13.MapMode = "FlatFace"
sketch13.AttachmentOffset = App.Placement(App.Vector(0, 0, -1.073 * 25.4), App.Rotation())
sketch13.addGeometry(Part.LineSegment(App.Vector(-28.6, 13.3, 0), App.Vector(-27.3, 12.6, 0)), False)
sketch13.addGeometry(Part.LineSegment(App.Vector(-27.3, 12.6, 0), App.Vector(-27.3, 11.1, 0)), False)
sketch13.addGeometry(Part.LineSegment(App.Vector(-27.3, 11.1, 0), App.Vector(-28.6, 10.4, 0)), False)
sketch13.addGeometry(Part.LineSegment(App.Vector(-28.6, 10.4, 0), App.Vector(-29.8, 11.1, 0)), False)
sketch13.addGeometry(Part.LineSegment(App.Vector(-29.8, 11.1, 0), App.Vector(-29.8, 12.6, 0)), False)
sketch13.addGeometry(Part.LineSegment(App.Vector(-29.8, 12.6, 0), App.Vector(-28.6, 13.3, 0)), False)
sketch13.addConstraint(Sketcher.Constraint("Coincident", 0, 2, 1, 1))
sketch13.addConstraint(Sketcher.Constraint("Coincident", 1, 2, 2, 1))
sketch13.addConstraint(Sketcher.Constraint("Coincident", 2, 2, 3, 1))
sketch13.addConstraint(Sketcher.Constraint("Coincident", 3, 2, 4, 1))
sketch13.addConstraint(Sketcher.Constraint("Coincident", 4, 2, 5, 1))
sketch13.addConstraint(Sketcher.Constraint("Coincident", 5, 2, 0, 1))
sketch13.addConstraint(Sketcher.Constraint("Vertical", 1))
sketch13.addConstraint(Sketcher.Constraint("Vertical", 4))
sketch13.addConstraint(Sketcher.Constraint("Parallel", 0, 3))
sketch13.addConstraint(Sketcher.Constraint("Parallel", 2, 5))
sketch13.addConstraint(Sketcher.Constraint("Horizontal", 1, 2, 3, 2))
sketch13.addConstraint(Sketcher.Constraint("Horizontal", 0, 2, 4, 2))
sketch13.addConstraint(Sketcher.Constraint("Vertical", 2, 2, 5, 2))
sketch13.addConstraint(Sketcher.Constraint("Angle", 0, Q("-30 deg")))
sketch13.addConstraint(Sketcher.Constraint("DistanceX", 0, 2, -1, 1, Q("1.076 in")))
sketch13.addConstraint(Sketcher.Constraint("DistanceX", 2, 2, -1, 1, Q("1.125 in")))
sketch13.addConstraint(Sketcher.Constraint("DistanceY", 1, 2, 1, 1, 1.43714))
sketch13.addConstraint(Sketcher.Constraint("DistanceY", -1, 1, 0, 2, 12.58037))
pocket2 = body.newObject("PartDesign::Pocket", "Pocket001")
pocket2.Profile = sketch13
pocket2.Length = Q("0.1 in")
pocket2.Reversed = True
doc.recompute()

chamfer = body.newObject("PartDesign::Chamfer", "Chamfer")
chamfer.Base = (pocket2, edges_at(pocket2, [(-27.254, -28.575, 14.605)]))
chamfer.Size = Q("0.015 in")
doc.recompute()

mirrored2 = body.newObject("PartDesign::Mirrored", "Mirrored001")
mirrored2.Originals = [pad3, pocket2]
mirrored2.MirrorPlane = (doc.getObject("XY_Plane"), [""])
body.Tip = mirrored2
doc.recompute()

chamfer2 = body.newObject("PartDesign::Chamfer", "Chamfer001")
chamfer2.Base = (mirrored2, edges_at(mirrored2, [(-27.254, -28.575, -14.605)]))
chamfer2.Size = Q("0.015 in")
doc.recompute()

fillet = body.newObject("PartDesign::Fillet", "Fillet")
fillet.Base = (chamfer2, edges_at(chamfer2, [(-14.351, 27.686, -27.686), (-14.351, 27.686, 27.686)]))
fillet.Radius = Q("0.255 in")

sketch14 = body.newObject("Sketcher::SketchObject", "Sketch013")
sketch14.AttachmentSupport = (doc.getObject("XZ_Plane"), [""])
sketch14.MapMode = "FlatFace"
sketch14.AttachmentOffset = App.Placement(App.Vector(0, 0, 1.169 * 25.4), App.Rotation())
sketch14.addGeometry(Part.LineSegment(App.Vector(-28.7, 0, 0), App.Vector(0, 0, 0)), False)
sketch14.addGeometry(Part.LineSegment(App.Vector(0, 0, 0), App.Vector(0, -4.4, 0)), False)
sketch14.addGeometry(Part.LineSegment(App.Vector(0, -4.4, 0), App.Vector(-28.7, -4.4, 0)), False)
sketch14.addGeometry(Part.LineSegment(App.Vector(-28.7, -4.4, 0), App.Vector(-28.7, 0, 0)), False)
sketch14.addConstraint(Sketcher.Constraint("Coincident", 0, 2, 1, 1))
sketch14.addConstraint(Sketcher.Constraint("Coincident", 1, 2, 2, 1))
sketch14.addConstraint(Sketcher.Constraint("Coincident", 2, 2, 3, 1))
sketch14.addConstraint(Sketcher.Constraint("Coincident", 3, 2, 0, 1))
sketch14.addConstraint(Sketcher.Constraint("Horizontal", 0))
sketch14.addConstraint(Sketcher.Constraint("Vertical", 1))
sketch14.addConstraint(Sketcher.Constraint("Horizontal", 2))
sketch14.addConstraint(Sketcher.Constraint("Vertical", 3))
sketch14.addConstraint(Sketcher.Constraint("Coincident", 0, 2, -1, 1))
sketch14.addConstraint(Sketcher.Constraint("DistanceX", 0, 1, 0, 2, Q("1.13 in")))
sketch14.addConstraint(Sketcher.Constraint("DistanceY", 1, 2, 1, 1, Q("0.174 in")))
groove8 = body.newObject("PartDesign::Groove", "Groove007")
groove8.Profile = sketch14
groove8.ReferenceAxis = (sketch14, ["H_Axis"])
groove8.Angle = 360
doc.recompute()

datumline = body.newObject("PartDesign::Line", "DatumLine")
datumline.Placement = App.Placement(App.Vector(0, 0, 0), App.Rotation(App.Vector(0, 0, 1), App.Vector(0, 0.923841935, 0.382774188)))
linearpattern = body.newObject("PartDesign::LinearPattern", "LinearPattern")
linearpattern.Originals = [groove8]
linearpattern.Direction = (datumline, [""])
linearpattern.Mode = "offset"
linearpattern.Offset = 54.877786
linearpattern.Occurrences = 2
body.Tip = linearpattern
doc.recompute()

datumline2 = body.newObject("PartDesign::Line", "DatumLine001")
datumline2.Placement = App.Placement(App.Vector(0, 0, 0), App.Rotation(App.Vector(0, 0, 1), App.Vector(0, 0.923841935, -0.382774188)))
linearpattern2 = body.newObject("PartDesign::LinearPattern", "LinearPattern001")
linearpattern2.Originals = [groove8]
linearpattern2.Direction = (datumline2, [""])
linearpattern2.Mode = "offset"
linearpattern2.Offset = 54.877786
linearpattern2.Occurrences = 2
body.Tip = linearpattern2
doc.recompute()

datumline3 = body.newObject("PartDesign::Line", "DatumLine002")
datumline3.Placement = App.Placement(App.Vector(0, 0, 0), App.Rotation(App.Vector(0, 0, 1), App.Vector(0, 0.382154394, 0.92409849)))
linearpattern3 = body.newObject("PartDesign::LinearPattern", "LinearPattern002")
linearpattern3.Originals = [groove8]
linearpattern3.Direction = (datumline3, [""])
linearpattern3.Mode = "offset"
linearpattern3.Offset = 22.731127
linearpattern3.Occurrences = 2
body.Tip = linearpattern3
doc.recompute()

datumline4 = body.newObject("PartDesign::Line", "DatumLine003")
datumline4.Placement = App.Placement(App.Vector(0, 0, 0), App.Rotation(App.Vector(0, 0, 1), App.Vector(0, 0.382154394, -0.92409849)))
linearpattern4 = body.newObject("PartDesign::LinearPattern", "LinearPattern003")
linearpattern4.Originals = [groove8]
linearpattern4.Direction = (datumline4, [""])
linearpattern4.Mode = "offset"
linearpattern4.Offset = 22.731127
linearpattern4.Occurrences = 2
body.Tip = linearpattern4
doc.recompute()

polarpattern = body.newObject("PartDesign::PolarPattern", "PolarPattern")
polarpattern.Originals = [groove5]
polarpattern.Axis = (doc.getObject("X_Axis"), [""])
polarpattern.Angle = 360
polarpattern.Occurrences = 6
body.Tip = polarpattern
body2 = doc.addObject("PartDesign::Body", "Body001")

sketch15 = body2.newObject("Sketcher::SketchObject", "Sketch014")
sketch15.AttachmentSupport = (doc.getObject("XY_Plane001"), [""])
sketch15.MapMode = "FlatFace"
sketch15.AttachmentOffset = App.Placement(App.Vector(0, 0, 0.467 * 25.4), App.Rotation())
sketch15.addGeometry(Part.Circle(App.Vector(-28.1, -23.8, 0), App.Vector(0, 0, 1), 0.9), False)
sketch15.addGeometry(Part.LineSegment(App.Vector(-28.1, -28.6, 0), App.Vector(-18.1, -28.6, 0)), True)
sketch15.addConstraint(Sketcher.Constraint("Horizontal", 1))
sketch15.addConstraint(Sketcher.Constraint("Vertical", 0, 3, 1, 1))
sketch15.addConstraint(Sketcher.Constraint("Diameter", 0, Q("0.07 in")))
sketch15.addConstraint(Sketcher.Constraint("DistanceX", 0, 3, -1, 1, Q("1.107 in")))
sketch15.addConstraint(Sketcher.Constraint("DistanceY", 1, 1, -1, 1, Q("1.125 in")))
sketch15.addConstraint(Sketcher.Constraint("DistanceX", 1, 1, 1, 2, 10.0))
sketch15.addConstraint(Sketcher.Constraint("DistanceY", 0, 3, -1, 1, Q("0.9355 in")))
revolution2 = body2.newObject("PartDesign::Revolution", "Revolution001")
revolution2.Profile = sketch15
revolution2.ReferenceAxis = (sketch15, ["Axis0"])
revolution2.Angle = 360
body3 = doc.addObject("PartDesign::Body", "Body002")
doc.recompute()

mirroring = doc.addObject("Part::Mirroring", "Mirroring")
mirroring.Source = body2
mirroring.Base = App.Vector(0, 0, 0)
mirroring.Normal = App.Vector(0, 0, 1)
body3.BaseFeature = mirroring
doc.recompute()
mirroring.Visibility = False

doc.recompute()
